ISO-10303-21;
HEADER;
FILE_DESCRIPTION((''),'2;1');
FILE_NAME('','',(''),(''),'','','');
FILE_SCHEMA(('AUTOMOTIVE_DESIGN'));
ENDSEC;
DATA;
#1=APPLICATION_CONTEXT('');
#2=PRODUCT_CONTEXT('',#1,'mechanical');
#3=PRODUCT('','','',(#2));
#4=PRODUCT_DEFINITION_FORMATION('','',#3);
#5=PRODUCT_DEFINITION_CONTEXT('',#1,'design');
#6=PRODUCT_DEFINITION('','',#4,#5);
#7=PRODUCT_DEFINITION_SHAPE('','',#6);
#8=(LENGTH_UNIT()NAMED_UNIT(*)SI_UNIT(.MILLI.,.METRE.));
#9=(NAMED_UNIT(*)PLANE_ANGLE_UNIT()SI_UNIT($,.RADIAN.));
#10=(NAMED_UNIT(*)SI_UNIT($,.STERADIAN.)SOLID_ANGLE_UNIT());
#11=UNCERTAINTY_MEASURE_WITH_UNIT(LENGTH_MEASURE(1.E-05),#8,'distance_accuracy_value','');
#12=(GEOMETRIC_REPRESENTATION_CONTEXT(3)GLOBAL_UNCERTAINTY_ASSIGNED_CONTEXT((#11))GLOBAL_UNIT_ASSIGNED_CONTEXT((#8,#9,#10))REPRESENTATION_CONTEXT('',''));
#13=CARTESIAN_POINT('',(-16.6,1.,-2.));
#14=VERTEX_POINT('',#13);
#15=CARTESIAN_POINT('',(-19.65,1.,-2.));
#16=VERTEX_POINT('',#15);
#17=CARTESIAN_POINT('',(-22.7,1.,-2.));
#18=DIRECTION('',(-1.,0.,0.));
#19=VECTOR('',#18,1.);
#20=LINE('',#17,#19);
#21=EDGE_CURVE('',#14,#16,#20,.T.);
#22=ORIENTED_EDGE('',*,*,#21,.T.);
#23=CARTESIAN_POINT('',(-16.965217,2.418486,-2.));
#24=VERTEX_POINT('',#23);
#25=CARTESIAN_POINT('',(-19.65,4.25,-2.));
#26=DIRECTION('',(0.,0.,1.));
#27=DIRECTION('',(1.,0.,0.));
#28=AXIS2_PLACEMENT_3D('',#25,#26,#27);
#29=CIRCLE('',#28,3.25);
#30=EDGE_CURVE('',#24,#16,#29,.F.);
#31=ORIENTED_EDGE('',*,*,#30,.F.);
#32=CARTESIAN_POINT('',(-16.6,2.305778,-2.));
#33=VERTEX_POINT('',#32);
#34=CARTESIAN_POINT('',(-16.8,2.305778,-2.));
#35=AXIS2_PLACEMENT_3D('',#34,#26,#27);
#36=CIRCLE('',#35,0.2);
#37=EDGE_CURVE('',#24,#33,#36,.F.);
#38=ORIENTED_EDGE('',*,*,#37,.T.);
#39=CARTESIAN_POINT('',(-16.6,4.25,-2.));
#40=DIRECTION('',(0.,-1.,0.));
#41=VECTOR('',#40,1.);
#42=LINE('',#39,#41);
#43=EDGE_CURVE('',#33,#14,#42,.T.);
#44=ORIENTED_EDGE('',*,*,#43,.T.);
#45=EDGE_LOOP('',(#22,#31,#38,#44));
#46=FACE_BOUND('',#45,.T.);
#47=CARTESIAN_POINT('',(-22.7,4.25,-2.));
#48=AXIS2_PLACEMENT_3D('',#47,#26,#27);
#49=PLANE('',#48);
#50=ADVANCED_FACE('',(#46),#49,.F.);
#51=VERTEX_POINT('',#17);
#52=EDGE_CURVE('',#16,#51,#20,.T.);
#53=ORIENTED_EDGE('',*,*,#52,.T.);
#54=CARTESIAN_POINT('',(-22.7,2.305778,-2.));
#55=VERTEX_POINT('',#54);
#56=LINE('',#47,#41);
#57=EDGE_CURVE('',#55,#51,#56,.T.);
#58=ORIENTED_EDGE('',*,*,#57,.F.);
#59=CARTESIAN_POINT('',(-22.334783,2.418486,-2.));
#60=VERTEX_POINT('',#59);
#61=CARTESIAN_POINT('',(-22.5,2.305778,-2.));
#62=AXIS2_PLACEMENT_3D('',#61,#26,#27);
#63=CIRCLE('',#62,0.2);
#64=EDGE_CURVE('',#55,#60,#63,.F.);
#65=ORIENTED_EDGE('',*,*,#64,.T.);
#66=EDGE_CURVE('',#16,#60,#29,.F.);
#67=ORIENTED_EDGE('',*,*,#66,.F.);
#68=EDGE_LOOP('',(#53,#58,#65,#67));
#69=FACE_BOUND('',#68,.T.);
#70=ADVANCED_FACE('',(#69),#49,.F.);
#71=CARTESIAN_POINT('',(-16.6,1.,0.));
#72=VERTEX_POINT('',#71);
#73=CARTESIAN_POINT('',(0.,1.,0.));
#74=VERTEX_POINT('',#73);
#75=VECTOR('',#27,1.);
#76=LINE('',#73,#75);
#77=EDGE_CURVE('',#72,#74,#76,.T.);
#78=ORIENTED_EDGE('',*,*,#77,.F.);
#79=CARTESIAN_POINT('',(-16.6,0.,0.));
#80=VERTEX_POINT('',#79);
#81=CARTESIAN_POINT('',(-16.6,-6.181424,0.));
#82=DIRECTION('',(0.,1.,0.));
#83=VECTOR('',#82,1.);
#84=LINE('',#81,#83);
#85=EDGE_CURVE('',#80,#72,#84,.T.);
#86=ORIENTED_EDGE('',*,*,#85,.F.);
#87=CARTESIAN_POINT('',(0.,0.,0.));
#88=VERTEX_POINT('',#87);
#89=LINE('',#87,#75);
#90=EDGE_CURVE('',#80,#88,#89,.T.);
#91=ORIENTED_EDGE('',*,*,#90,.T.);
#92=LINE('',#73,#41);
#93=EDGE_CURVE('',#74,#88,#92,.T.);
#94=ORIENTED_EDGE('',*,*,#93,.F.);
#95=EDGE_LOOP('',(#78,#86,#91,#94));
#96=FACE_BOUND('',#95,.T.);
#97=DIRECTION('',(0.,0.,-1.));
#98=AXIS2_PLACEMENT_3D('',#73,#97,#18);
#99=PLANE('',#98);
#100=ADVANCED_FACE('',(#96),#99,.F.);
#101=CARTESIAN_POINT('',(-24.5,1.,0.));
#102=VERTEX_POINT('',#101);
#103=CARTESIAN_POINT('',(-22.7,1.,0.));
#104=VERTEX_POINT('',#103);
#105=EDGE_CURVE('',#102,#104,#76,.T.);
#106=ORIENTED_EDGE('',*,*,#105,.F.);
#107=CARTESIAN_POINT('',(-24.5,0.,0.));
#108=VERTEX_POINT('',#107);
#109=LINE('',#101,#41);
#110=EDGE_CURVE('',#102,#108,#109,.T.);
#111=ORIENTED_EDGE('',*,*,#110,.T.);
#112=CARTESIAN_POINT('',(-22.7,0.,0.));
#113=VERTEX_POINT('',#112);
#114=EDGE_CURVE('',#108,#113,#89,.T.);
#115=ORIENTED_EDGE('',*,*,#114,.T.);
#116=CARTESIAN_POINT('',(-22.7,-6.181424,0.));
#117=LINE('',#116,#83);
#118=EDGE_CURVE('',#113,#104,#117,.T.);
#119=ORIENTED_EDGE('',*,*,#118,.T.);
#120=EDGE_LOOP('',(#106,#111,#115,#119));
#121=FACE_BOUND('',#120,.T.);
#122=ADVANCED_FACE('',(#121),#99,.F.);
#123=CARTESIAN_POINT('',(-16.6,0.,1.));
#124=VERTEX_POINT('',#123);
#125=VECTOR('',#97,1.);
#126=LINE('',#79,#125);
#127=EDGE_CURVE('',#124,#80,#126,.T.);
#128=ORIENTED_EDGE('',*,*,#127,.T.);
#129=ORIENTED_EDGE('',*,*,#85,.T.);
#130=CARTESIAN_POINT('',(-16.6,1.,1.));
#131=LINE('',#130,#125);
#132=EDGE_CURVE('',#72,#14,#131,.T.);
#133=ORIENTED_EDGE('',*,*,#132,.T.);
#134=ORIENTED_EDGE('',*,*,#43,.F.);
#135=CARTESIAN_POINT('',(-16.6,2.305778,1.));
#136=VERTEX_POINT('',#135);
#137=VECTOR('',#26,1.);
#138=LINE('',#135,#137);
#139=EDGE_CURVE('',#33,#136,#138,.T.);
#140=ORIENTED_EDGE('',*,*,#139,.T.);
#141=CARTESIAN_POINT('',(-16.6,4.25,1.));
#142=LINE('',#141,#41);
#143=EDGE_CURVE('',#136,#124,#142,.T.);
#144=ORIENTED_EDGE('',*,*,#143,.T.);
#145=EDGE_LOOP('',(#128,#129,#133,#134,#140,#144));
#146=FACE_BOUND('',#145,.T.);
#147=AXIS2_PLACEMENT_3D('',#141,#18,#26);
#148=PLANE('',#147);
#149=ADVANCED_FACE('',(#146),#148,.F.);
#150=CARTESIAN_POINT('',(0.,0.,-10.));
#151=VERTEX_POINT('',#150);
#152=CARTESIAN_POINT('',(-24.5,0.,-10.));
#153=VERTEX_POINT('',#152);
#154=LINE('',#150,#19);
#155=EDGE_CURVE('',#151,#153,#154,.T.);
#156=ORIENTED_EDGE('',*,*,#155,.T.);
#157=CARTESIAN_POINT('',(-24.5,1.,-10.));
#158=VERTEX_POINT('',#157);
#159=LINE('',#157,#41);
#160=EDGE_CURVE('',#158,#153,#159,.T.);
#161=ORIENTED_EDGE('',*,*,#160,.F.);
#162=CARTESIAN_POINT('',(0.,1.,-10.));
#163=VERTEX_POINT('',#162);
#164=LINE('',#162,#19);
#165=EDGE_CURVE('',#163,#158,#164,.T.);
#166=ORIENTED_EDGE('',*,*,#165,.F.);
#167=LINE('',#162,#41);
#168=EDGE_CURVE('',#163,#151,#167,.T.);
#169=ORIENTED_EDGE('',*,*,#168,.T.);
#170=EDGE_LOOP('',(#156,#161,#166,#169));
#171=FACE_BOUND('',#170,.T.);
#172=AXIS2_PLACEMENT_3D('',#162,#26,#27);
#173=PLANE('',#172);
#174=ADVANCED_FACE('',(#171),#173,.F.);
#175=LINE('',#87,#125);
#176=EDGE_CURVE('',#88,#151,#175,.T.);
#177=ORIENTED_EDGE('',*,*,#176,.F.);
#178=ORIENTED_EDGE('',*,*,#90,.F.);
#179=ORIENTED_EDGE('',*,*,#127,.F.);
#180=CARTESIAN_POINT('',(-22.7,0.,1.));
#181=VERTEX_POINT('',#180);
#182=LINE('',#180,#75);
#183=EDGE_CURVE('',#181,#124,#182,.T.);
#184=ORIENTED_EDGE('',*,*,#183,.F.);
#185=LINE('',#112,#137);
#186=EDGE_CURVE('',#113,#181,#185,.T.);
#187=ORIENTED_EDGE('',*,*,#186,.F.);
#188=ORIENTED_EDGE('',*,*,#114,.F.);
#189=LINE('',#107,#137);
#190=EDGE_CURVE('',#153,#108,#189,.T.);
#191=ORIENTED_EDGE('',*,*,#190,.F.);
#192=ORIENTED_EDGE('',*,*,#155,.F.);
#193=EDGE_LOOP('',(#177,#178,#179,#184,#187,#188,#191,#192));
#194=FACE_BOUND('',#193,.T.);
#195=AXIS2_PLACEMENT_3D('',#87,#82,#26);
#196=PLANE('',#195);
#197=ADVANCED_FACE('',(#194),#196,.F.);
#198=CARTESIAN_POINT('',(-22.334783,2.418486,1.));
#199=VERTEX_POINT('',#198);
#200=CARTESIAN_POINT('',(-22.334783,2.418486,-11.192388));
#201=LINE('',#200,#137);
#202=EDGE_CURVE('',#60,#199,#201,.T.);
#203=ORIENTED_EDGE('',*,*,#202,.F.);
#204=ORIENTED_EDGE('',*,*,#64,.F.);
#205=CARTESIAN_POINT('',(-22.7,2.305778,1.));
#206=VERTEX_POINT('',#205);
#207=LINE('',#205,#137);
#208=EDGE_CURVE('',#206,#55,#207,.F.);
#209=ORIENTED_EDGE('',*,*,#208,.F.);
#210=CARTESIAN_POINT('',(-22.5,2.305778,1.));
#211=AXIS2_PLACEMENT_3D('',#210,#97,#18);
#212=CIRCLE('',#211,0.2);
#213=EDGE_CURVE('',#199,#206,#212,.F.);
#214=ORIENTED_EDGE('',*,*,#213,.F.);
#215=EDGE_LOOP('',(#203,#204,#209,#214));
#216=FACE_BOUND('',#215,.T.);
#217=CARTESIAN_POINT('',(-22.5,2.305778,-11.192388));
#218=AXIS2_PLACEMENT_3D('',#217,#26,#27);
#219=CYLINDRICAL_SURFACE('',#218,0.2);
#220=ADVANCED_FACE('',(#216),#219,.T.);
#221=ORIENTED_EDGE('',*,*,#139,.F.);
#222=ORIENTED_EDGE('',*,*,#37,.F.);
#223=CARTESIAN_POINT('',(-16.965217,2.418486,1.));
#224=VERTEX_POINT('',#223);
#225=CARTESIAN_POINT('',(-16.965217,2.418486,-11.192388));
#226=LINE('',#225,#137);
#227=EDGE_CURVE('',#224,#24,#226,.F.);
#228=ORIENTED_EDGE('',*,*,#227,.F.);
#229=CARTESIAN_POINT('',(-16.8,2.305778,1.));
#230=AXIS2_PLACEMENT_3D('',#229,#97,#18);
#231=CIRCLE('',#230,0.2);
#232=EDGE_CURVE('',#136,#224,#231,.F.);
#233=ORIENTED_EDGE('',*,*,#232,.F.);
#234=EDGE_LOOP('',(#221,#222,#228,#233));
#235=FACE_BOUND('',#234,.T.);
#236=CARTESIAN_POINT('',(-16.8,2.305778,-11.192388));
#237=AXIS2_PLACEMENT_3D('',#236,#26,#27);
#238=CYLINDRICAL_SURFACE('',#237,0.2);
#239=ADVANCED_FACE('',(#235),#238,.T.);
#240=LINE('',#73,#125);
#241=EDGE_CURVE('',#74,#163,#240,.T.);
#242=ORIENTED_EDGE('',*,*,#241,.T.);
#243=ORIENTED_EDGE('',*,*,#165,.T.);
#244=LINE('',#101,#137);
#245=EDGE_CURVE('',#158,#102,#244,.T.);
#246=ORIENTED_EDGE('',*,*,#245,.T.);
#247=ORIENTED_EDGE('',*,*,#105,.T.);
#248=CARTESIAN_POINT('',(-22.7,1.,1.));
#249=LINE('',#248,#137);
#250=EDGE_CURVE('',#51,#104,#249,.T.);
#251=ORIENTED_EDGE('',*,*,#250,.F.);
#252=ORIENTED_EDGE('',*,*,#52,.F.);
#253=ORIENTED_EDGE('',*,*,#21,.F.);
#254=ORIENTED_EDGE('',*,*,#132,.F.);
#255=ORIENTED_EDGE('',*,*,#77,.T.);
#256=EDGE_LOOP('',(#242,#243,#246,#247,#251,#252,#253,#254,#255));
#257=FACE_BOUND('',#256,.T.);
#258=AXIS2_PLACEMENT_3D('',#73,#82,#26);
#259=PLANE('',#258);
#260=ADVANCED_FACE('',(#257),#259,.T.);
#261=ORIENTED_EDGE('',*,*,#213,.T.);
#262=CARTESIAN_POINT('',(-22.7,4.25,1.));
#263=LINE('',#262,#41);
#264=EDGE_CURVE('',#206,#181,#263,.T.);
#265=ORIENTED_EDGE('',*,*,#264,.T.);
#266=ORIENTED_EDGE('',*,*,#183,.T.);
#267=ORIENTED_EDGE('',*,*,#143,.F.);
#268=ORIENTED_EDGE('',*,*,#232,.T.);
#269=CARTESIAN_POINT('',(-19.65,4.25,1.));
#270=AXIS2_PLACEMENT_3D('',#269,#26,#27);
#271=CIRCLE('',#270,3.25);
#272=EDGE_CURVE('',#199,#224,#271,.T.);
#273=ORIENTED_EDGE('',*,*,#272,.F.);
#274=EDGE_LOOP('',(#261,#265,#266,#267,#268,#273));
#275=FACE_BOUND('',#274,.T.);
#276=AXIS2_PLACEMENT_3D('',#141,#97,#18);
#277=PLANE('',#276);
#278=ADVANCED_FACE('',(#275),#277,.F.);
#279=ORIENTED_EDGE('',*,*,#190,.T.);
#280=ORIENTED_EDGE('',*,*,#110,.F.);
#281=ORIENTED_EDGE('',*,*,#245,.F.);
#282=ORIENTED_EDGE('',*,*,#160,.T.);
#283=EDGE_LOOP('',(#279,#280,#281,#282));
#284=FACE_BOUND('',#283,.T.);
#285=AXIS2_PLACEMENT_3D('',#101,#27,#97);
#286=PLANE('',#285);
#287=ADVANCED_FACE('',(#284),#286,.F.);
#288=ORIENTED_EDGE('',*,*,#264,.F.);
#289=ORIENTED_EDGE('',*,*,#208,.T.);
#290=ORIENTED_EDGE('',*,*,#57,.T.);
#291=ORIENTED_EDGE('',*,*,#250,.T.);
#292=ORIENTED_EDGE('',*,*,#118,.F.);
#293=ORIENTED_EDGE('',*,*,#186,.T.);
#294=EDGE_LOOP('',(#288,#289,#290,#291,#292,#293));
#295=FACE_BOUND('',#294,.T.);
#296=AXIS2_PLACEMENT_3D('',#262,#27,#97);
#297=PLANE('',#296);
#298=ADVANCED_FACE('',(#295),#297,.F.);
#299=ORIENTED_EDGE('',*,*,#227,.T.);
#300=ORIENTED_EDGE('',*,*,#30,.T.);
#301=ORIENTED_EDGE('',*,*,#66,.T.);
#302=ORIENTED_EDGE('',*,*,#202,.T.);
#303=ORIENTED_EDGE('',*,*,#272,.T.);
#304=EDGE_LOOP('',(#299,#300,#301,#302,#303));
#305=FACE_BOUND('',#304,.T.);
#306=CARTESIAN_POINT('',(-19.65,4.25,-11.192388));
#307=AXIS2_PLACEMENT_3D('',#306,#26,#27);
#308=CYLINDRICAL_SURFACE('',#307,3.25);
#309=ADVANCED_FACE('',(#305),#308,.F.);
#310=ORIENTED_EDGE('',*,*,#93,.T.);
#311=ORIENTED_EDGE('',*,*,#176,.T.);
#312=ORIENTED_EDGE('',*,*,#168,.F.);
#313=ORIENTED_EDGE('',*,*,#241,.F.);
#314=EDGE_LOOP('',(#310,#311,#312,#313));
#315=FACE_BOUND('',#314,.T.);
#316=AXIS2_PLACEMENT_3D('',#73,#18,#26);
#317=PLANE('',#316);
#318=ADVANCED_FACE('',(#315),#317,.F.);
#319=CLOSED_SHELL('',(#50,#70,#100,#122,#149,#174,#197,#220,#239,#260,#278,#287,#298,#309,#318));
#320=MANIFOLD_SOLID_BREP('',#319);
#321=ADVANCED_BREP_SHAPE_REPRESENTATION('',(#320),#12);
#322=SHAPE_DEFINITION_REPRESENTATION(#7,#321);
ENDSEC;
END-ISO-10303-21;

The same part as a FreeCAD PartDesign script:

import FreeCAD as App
import Part
import Sketcher
Q = App.Units.Quantity


def edges_at(feature, points):
    """Names of the edges that pass closest to the given points."""
    edges = feature.Shape.Edges
    near = lambda p: min(range(len(edges)), key=lambda i: edges[i].distToShape(Part.Vertex(*p))[0])
    return sorted({f"Edge{near(p) + 1}" for p in points})

doc = App.newDocument("Part")
body = doc.addObject("PartDesign::Body", "Body")

# Sketch on XZ plane
sketch1 = body.newObject("Sketcher::SketchObject", "Sketch")
sketch1.AttachmentSupport = (doc.getObject("XZ_Plane"), [""])
sketch1.MapMode = "FlatFace"
sketch1.addGeometry([
    Part.LineSegment(App.Vector(-24, -10, 0), App.Vector(-24, 0, 0)),
    Part.LineSegment(App.Vector(-24, 0, 0), App.Vector(0, 0, 0)),
    Part.LineSegment(App.Vector(0, 0, 0), App.Vector(0, -10, 0)),
    Part.LineSegment(App.Vector(0, -10, 0), App.Vector(-24, -10, 0)),
], False)
sketch1.addConstraint([
    Sketcher.Constraint("Coincident", 0, 2, 1, 1),
    Sketcher.Constraint("Coincident", 1, 2, 2, 1),
    Sketcher.Constraint("Coincident", 2, 2, 3, 1),
    Sketcher.Constraint("Coincident", 3, 2, 0, 1),
    Sketcher.Constraint("Vertical", 0),
    Sketcher.Constraint("Horizontal", 1),
    Sketcher.Constraint("Vertical", 2),
    Sketcher.Constraint("Horizontal", 3),
    Sketcher.Constraint("Coincident", 1, 2, -1, 1),
    Sketcher.Constraint("DistanceY", 0, 1, 0, 2, Q("10 mm")),
    Sketcher.Constraint("DistanceX", 1, 1, 1, 2, Q("24.5 mm")),
])
pad1 = body.newObject("PartDesign::Pad", "Pad")
pad1.Profile = sketch1
pad1.Length = 1
pad1.Reversed = True

# Sketch on XZ plane
sketch2 = body.newObject("Sketcher::SketchObject", "Sketch001")
sketch2.AttachmentSupport = (doc.getObject("XZ_Plane"), [""])
sketch2.MapMode = "FlatFace"
sketch2.AttachmentOffset = App.Placement(App.Vector(0, 0, -1), App.Rotation())
sketch2.addGeometry([
    Part.LineSegment(App.Vector(-22.7, -2, 0), App.Vector(-22.7, 1, 0)),
    Part.LineSegment(App.Vector(-22.7, 1, 0), App.Vector(-16.6, 1, 0)),
    Part.LineSegment(App.Vector(-16.6, 1, 0), App.Vector(-16.6, -2, 0)),
    Part.LineSegment(App.Vector(-16.6, -2, 0), App.Vector(-22.7, -2, 0)),
], False)
sketch2.addConstraint([
    Sketcher.Constraint("Coincident", 0, 2, 1, 1),
    Sketcher.Constraint("Coincident", 1, 2, 2, 1),
    Sketcher.Constraint("Coincident", 2, 2, 3, 1),
    Sketcher.Constraint("Coincident", 3, 2, 0, 1),
    Sketcher.Constraint("Vertical", 0),
    Sketcher.Constraint("Horizontal", 1),
    Sketcher.Constraint("Vertical", 2),
    Sketcher.Constraint("Horizontal", 3),
    Sketcher.Constraint("DistanceY", 0, 1, 0, 2, Q("3 mm")),
    Sketcher.Constraint("DistanceX", 1, 1, 1, 2, Q("6.1 mm")),
    Sketcher.Constraint("DistanceY", -1, 1, 0, 2, Q("1 mm")),
    Sketcher.Constraint("DistanceX", 0, 2, -1, 1, Q("22.7 mm")),
])
pad2 = body.newObject("PartDesign::Pad", "Pad001")
pad2.Profile = sketch2
pad2.Length = 3.25
pad2.Reversed = True

# Sketch on XZ plane
sketch3 = body.newObject("Sketcher::SketchObject", "Sketch002")
sketch3.AttachmentSupport = (doc.getObject("XZ_Plane"), [""])
sketch3.MapMode = "FlatFace"
sketch3.AttachmentOffset = App.Placement(App.Vector(0, 0, -1), App.Rotation())
sketch3.addGeometry([
    Part.LineSegment(App.Vector(-16.6, 0, 0), App.Vector(-16.6, 1, 0)),
    Part.LineSegment(App.Vector(-16.6, 1, 0), App.Vector(-22.7, 1, 0)),
    Part.LineSegment(App.Vector(-22.7, 1, 0), App.Vector(-22.7, 0, 0)),
    Part.LineSegment(App.Vector(-22.7, 0, 0), App.Vector(-16.6, 0, 0)),
], False)
sketch3.addConstraint([
    Sketcher.Constraint("Coincident", 0, 2, 1, 1),
    Sketcher.Constraint("Coincident", 1, 2, 2, 1),
    Sketcher.Constraint("Coincident", 2, 2, 3, 1),
    Sketcher.Constraint("Coincident", 3, 2, 0, 1),
    Sketcher.Constraint("Vertical", 0),
    Sketcher.Constraint("Horizontal", 1),
    Sketcher.Constraint("Vertical", 2),
    Sketcher.Constraint("Horizontal", 3),
    Sketcher.Constraint("PointOnObject", 2, 2, -1),
    Sketcher.Constraint("DistanceY", 0, 1, 0, 2, Q("1 mm")),
    Sketcher.Constraint("DistanceX", 1, 2, 1, 1, Q("6.1 mm")),
    Sketcher.Constraint("DistanceX", 0, 2, -1, 1, Q("16.6 mm")),
])
pad3 = body.newObject("PartDesign::Pad", "Pad002")
pad3.Profile = sketch3
pad3.Length = 1

# Sketch on XY plane
sketch4 = body.newObject("Sketcher::SketchObject", "Sketch003")
sketch4.AttachmentSupport = (doc.getObject("XY_Plane"), [""])
sketch4.MapMode = "FlatFace"
sketch4.AttachmentOffset = App.Placement(App.Vector(0, 0, 1), App.Rotation())
sketch4.addGeometry(Part.Circle(App.Vector(-19.6, 4.2, 0), App.Vector(0, 0, 1), 3.2), False)
sketch4.addConstraint([
    Sketcher.Constraint("Diameter", 0, Q("6.5 mm")),
    Sketcher.Constraint("DistanceX", 0, 3, -1, 1, Q("19.65 mm")),
    Sketcher.Constraint("DistanceY", -1, 1, 0, 3, Q("4.25 mm")),
])
pocket1 = body.newObject("PartDesign::Pocket", "Pocket")
pocket1.Profile = sketch4
pocket1.Length = 3
doc.recompute()

fillet = body.newObject("PartDesign::Fillet", "Fillet")
fillet.Base = (pocket1, edges_at(pocket1, [(-16.6, 3.128, -0.5), (-22.7, 3.128, -0.5)]))
fillet.Radius = 0.2

doc.recompute()
